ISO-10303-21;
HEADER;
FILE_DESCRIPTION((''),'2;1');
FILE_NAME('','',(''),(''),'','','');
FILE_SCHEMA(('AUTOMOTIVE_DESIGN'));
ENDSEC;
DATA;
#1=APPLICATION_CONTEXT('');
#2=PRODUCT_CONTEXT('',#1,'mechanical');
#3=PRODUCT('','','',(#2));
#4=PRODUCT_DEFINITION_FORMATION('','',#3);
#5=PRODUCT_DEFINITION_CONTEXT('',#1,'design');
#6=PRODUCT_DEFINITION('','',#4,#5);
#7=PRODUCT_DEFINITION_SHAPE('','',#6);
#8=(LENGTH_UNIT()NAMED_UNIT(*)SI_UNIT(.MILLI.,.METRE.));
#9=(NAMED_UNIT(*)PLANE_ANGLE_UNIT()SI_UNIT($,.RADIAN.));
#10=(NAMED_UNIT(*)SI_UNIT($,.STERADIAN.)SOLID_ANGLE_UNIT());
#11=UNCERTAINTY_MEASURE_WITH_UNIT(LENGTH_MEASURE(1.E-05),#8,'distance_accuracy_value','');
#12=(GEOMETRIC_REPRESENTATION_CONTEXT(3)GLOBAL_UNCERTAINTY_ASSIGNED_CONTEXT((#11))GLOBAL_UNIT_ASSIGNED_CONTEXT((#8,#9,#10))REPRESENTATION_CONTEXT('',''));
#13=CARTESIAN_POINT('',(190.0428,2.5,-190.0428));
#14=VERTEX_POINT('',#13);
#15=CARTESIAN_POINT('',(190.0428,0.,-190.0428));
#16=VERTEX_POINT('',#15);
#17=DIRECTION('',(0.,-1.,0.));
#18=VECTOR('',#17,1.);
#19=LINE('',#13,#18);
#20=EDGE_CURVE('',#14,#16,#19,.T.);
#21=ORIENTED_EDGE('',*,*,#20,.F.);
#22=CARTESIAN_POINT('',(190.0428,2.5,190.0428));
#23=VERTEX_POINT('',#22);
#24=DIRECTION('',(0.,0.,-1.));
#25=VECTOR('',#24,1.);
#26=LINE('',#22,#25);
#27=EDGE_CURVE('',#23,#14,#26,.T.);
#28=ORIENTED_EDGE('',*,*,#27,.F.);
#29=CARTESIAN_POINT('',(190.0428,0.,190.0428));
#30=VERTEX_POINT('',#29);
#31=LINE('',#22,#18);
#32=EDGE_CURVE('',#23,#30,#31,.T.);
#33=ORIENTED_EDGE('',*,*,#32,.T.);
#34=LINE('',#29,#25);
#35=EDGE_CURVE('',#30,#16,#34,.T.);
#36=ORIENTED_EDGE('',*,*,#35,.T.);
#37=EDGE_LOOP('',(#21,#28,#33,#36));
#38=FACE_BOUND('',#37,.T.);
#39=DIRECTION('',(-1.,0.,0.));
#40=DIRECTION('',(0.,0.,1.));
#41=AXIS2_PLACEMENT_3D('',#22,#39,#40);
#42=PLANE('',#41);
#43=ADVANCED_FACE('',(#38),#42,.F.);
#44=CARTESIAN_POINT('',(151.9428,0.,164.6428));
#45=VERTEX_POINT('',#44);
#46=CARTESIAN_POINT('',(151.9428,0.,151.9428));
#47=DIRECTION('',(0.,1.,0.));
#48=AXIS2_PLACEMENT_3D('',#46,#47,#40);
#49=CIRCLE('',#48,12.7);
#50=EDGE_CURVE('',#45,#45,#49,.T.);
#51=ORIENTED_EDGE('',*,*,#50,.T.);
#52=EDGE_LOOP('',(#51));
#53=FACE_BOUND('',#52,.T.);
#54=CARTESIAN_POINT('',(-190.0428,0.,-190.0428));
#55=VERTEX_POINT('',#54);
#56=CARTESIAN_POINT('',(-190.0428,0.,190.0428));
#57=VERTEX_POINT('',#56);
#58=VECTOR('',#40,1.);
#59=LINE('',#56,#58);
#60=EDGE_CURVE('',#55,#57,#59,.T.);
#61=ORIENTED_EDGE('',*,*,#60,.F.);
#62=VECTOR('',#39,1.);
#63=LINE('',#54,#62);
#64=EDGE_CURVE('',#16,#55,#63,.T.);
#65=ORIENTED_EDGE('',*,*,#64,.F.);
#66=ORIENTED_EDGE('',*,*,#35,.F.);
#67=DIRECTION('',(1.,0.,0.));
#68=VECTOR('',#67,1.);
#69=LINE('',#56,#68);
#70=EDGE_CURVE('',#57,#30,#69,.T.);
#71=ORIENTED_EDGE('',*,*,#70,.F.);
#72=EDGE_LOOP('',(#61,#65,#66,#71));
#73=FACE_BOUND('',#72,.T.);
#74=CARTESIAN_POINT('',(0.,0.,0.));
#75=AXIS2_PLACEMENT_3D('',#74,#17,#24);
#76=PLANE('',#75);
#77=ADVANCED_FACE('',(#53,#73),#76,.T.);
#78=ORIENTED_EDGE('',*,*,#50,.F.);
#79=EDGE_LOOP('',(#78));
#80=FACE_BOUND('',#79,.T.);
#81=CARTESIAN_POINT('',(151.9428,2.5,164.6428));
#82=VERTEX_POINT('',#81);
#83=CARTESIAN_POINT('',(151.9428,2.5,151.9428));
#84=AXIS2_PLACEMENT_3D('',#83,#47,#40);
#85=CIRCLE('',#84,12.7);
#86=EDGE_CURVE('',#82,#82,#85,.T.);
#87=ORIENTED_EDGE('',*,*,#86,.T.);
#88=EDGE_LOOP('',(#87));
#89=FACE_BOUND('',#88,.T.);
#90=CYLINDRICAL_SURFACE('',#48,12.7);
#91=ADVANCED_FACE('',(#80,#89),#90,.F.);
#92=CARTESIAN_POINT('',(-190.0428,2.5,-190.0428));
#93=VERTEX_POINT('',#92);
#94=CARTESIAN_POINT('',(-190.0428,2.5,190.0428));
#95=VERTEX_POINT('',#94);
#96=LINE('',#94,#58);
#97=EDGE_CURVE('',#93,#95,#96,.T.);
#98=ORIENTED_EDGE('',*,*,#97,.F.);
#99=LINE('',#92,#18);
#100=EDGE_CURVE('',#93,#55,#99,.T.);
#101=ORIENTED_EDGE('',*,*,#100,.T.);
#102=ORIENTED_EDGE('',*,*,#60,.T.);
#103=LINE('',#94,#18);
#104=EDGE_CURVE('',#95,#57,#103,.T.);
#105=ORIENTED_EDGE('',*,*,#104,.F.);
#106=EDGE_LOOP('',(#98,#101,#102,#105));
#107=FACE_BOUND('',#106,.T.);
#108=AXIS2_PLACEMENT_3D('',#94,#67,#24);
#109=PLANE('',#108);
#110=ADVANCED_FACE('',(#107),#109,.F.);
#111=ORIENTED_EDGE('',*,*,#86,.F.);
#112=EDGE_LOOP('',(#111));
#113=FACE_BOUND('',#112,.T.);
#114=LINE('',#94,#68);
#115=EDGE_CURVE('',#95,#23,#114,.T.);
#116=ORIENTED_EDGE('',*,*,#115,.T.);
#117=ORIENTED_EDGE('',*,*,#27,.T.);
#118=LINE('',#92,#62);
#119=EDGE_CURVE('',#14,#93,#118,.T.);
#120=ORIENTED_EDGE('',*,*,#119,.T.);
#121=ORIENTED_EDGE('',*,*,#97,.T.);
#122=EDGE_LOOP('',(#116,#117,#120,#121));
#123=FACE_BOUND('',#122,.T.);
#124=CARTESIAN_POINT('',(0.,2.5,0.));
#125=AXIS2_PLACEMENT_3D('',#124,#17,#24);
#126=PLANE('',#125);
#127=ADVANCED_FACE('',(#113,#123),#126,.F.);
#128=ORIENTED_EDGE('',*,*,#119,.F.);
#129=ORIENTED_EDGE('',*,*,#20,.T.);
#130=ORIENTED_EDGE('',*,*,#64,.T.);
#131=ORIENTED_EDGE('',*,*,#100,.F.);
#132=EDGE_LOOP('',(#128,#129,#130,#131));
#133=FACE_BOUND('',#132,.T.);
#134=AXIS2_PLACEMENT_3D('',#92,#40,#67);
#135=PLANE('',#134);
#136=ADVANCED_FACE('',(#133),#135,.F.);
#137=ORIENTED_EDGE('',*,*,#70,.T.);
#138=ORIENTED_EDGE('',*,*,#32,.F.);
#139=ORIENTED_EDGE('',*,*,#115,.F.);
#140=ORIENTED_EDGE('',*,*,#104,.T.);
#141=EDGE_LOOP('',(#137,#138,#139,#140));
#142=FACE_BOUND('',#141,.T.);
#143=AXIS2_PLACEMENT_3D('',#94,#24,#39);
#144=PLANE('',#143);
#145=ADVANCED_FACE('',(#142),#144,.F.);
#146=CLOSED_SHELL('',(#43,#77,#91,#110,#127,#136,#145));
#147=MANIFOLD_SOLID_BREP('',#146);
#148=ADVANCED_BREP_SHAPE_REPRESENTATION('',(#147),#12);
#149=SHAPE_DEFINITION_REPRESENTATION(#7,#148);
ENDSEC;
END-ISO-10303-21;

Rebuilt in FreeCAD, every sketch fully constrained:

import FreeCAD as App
import Part
import Sketcher
from FreeCAD import Vector
Q = App.Units.Quantity

doc = App.newDocument("Part")
params = doc.addObject("Spreadsheet::Sheet", "Params")
for row, (alias, value) in enumerate([
    ("pad1_length", "2.5 mm"),
    ("sketch2_diameter", "25.4 mm"),
], start=1):
    params.set(f"A{row}", alias)
    params.set(f"B{row}", "=" + value)
    params.setAlias(f"B{row}", alias)

body = doc.addObject("PartDesign::Body", "Body")

# Sketch on XZ plane
sketch1 = body.newObject("Sketcher::SketchObject", "Sketch")
sketch1.AttachmentSupport = (doc.getObject("XZ_Plane"), [""])
sketch1.MapMode = "FlatFace"
sketch1.addGeometry(Part.LineSegment(Vector(-190, -190, 0), Vector(-190, 190, 0)), False)
sketch1.addGeometry(Part.LineSegment(Vector(-190, 190, 0), Vector(190, 190, 0)), False)
sketch1.addGeometry(Part.LineSegment(Vector(190, 190, 0), Vector(190, -190, 0)), False)
sketch1.addGeometry(Part.LineSegment(Vector(190, -190, 0), Vector(-190, -190, 0)), False)
sketch1.addConstraint(Sketcher.Constraint("Coincident", 0, 2, 1, 1))
sketch1.addConstraint(Sketcher.Constraint("Coincident", 1, 2, 2, 1))
sketch1.addConstraint(Sketcher.Constraint("Coincident", 2, 2, 3, 1))
sketch1.addConstraint(Sketcher.Constraint("Coincident", 3, 2, 0, 1))
sketch1.addConstraint(Sketcher.Constraint("Vertical", 0))
sketch1.addConstraint(Sketcher.Constraint("Horizontal", 1))
sketch1.addConstraint(Sketcher.Constraint("Vertical", 2))
sketch1.addConstraint(Sketcher.Constraint("Horizontal", 3))
sketch1.addConstraint(Sketcher.Constraint("Symmetric", 0, 2, 2, 2, -1, 1))
sketch1.addConstraint(Sketcher.Constraint("Equal", 3, 0))
sketch1.addConstraint(Sketcher.Constraint("DistanceX", 1, 1, 1, 2, Q("380.0856 mm")))
pad1 = body.newObject("PartDesign::Pad", "Pad")
pad1.Profile = sketch1
pad1.setExpression("Length", "Params.pad1_length")
pad1.Reversed = True

# Sketch on XZ plane
sketch2 = body.newObject("Sketcher::SketchObject", "Sketch001")
sketch2.AttachmentSupport = (doc.getObject("XZ_Plane"), [""])
sketch2.MapMode = "FlatFace"
sketch2.AttachmentOffset = App.Placement(Vector(0, 0, -2.5), App.Rotation())
sketch2.addGeometry(Part.Circle(Vector(152, 152, 0), Vector(0, 0, 1), 13), False)
sketch2.addConstraint(Sketcher.Constraint("Diameter", 0, Q("25.4 mm")))
sketch2.addConstraint(Sketcher.Constraint("DistanceX", -1, 1, 0, 3, Q("151.9428 mm")))
sketch2.addConstraint(Sketcher.Constraint("DistanceY", -1, 1, 0, 3, Q("151.9428 mm")))
sketch2.setExpression("Constraints[0]", "Params.sketch2_diameter")
pocket1 = body.newObject("PartDesign::Pocket", "Pocket")
pocket1.Profile = sketch2
pocket1.Type = "ThroughAll"
pocket1.Reversed = True

doc.recompute()
